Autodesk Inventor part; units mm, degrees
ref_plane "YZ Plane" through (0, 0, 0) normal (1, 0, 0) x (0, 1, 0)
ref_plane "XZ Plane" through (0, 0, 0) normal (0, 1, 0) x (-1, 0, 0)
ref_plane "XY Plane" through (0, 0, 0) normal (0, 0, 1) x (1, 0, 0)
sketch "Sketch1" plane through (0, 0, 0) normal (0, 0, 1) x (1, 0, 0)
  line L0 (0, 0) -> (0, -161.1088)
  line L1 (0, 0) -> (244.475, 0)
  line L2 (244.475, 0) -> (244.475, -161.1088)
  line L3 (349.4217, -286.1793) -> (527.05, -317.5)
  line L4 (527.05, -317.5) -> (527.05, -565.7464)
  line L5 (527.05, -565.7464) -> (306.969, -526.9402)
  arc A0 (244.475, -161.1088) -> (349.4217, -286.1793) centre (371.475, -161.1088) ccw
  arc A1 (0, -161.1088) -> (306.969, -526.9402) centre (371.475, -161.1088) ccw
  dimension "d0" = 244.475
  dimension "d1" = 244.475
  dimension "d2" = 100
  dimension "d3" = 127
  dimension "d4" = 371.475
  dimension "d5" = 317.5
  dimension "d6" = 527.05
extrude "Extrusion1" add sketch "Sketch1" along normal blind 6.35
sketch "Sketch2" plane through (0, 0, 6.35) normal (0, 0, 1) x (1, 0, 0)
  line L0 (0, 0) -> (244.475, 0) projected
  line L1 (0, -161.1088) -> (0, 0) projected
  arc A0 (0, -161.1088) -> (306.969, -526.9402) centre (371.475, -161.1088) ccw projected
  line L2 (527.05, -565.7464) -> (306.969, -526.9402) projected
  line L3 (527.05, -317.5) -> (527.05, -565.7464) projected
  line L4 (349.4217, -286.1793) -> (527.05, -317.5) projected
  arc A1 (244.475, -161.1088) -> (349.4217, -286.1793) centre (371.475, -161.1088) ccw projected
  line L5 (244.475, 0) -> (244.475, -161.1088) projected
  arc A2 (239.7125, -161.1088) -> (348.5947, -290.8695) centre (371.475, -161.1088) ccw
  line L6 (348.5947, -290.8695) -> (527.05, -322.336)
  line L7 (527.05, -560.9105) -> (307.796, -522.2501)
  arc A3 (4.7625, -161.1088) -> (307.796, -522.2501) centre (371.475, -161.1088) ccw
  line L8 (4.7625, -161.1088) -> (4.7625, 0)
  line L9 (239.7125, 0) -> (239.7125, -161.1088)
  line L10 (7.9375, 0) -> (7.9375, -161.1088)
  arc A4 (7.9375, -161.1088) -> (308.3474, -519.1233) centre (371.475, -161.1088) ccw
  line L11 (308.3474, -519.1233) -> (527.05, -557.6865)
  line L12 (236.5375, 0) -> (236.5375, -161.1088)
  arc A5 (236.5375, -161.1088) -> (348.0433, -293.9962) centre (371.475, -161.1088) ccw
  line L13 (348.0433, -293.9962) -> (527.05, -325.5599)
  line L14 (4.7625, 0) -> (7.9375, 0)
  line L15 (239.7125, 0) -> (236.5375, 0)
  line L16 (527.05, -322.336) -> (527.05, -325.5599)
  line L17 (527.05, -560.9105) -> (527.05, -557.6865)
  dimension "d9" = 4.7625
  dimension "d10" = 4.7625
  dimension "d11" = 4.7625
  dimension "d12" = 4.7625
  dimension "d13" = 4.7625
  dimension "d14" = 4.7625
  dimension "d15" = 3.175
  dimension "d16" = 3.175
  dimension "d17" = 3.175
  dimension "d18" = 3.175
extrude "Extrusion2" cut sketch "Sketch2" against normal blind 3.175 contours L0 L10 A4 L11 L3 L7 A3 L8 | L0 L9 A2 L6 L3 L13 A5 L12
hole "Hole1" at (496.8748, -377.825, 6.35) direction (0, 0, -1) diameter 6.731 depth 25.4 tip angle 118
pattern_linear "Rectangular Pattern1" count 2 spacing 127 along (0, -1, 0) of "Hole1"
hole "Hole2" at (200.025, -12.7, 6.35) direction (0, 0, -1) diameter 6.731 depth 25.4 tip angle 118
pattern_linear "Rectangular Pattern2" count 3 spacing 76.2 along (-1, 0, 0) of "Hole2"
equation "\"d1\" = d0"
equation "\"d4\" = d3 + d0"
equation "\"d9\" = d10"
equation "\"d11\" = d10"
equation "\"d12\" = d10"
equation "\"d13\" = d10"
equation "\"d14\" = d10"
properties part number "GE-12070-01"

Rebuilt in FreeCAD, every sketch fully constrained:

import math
import FreeCAD as App
import Part
import Sketcher
from FreeCAD import Vector
Q = App.Units.Quantity

doc = App.newDocument("Part")
body = doc.addObject("PartDesign::Body", "Body")

# Sketch on XY plane
sketch1 = body.newObject("Sketcher::SketchObject", "Sketch")
sketch1.AttachmentSupport = (doc.getObject("XY_Plane"), [""])
sketch1.MapMode = "FlatFace"
sketch1.addGeometry(Part.LineSegment(Vector(244.475, 0, 0), Vector(0, 0, 0)), False)
sketch1.addGeometry(Part.LineSegment(Vector(0, 0, 0), Vector(0, -161.1088, 0)), False)
sketch1.addGeometry(Part.ArcOfCircle(Part.Circle(Vector(371.475, -161.1088, 0), Vector(0, 0, 1), 371.475), math.radians(180), math.radians(259.999992)), False)
sketch1.addGeometry(Part.LineSegment(Vector(306.969, -526.9402, 0), Vector(527.05, -565.7464, 0)), False)
sketch1.addGeometry(Part.LineSegment(Vector(527.05, -565.7464, 0), Vector(527.05, -317.5, 0)), False)
sketch1.addGeometry(Part.LineSegment(Vector(527.05, -317.5, 0), Vector(349.4217, -286.1793, 0)), False)
sketch1.addGeometry(Part.ArcOfCircle(Part.Circle(Vector(371.475, -161.1088, 0), Vector(0, 0, 1), 127), math.radians(180), math.radians(260.000002)), False)
sketch1.addGeometry(Part.LineSegment(Vector(244.475, -161.1088, 0), Vector(244.475, 0, 0)), False)
sketch1.addConstraint(Sketcher.Constraint("Coincident", 0, 2, 1, 1))
sketch1.addConstraint(Sketcher.Constraint("Tangent", 1, 2, 2, 1))
sketch1.addConstraint(Sketcher.Constraint("Tangent", 2, 2, 3, 1))
sketch1.addConstraint(Sketcher.Constraint("Coincident", 3, 2, 4, 1))
sketch1.addConstraint(Sketcher.Constraint("Coincident", 4, 2, 5, 1))
sketch1.addConstraint(Sketcher.Constraint("Tangent", 5, 2, 6, 2))
sketch1.addConstraint(Sketcher.Constraint("Tangent", 6, 1, 7, 1))
sketch1.addConstraint(Sketcher.Constraint("Coincident", 7, 2, 0, 1))
sketch1.addConstraint(Sketcher.Constraint("Horizontal", 0))
sketch1.addConstraint(Sketcher.Constraint("Vertical", 1))
sketch1.addConstraint(Sketcher.Constraint("Vertical", 4))
sketch1.addConstraint(Sketcher.Constraint("Vertical", 7))
sketch1.addConstraint(Sketcher.Constraint("Coincident", 0, 2, -1, 1))
sketch1.addConstraint(Sketcher.Constraint("Coincident", 6, 3, 2, 3))
sketch1.addConstraint(Sketcher.Constraint("Parallel", 3, 5))
sketch1.addConstraint(Sketcher.Constraint("Radius", 6, Q("5 in")))
sketch1.addConstraint(Sketcher.Constraint("Radius", 2, Q("14.625 in")))
sketch1.addConstraint(Sketcher.Constraint("DistanceY", 4, 2, -1, 1, Q("12.5 in")))
sketch1.addConstraint(Sketcher.Constraint("DistanceX", -1, 1, 3, 2, Q("20.75 in")))
sketch1.addConstraint(Sketcher.Constraint("Angle", 3, Q("-10 deg")))
pad1 = body.newObject("PartDesign::Pad", "Pad")
pad1.Profile = sketch1
pad1.Length = Q("0.25 in")

# Sketch on XY plane
sketch2 = body.newObject("Sketcher::SketchObject", "Sketch001")
sketch2.AttachmentSupport = (doc.getObject("XY_Plane"), [""])
sketch2.MapMode = "FlatFace"
sketch2.AttachmentOffset = App.Placement(Vector(0, 0, 0.25 * 25.4), App.Rotation())
sketch2.addGeometry(Part.LineSegment(Vector(7.9375, 0, 0), Vector(4.7625, 0, 0)), False)
sketch2.addGeometry(Part.LineSegment(Vector(4.7625, 0, 0), Vector(4.7625, -161.1088, 0)), False)
sketch2.addGeometry(Part.ArcOfCircle(Part.Circle(Vector(371.475, -161.1088, 0), Vector(0, 0, 1), 366.7125), math.radians(180), math.radians(259.999993)), False)
sketch2.addGeometry(Part.LineSegment(Vector(307.796, -522.2501, 0), Vector(527.05, -560.9105, 0)), False)
sketch2.addGeometry(Part.LineSegment(Vector(527.05, -560.9105, 0), Vector(527.05, -557.6865, 0)), False)
sketch2.addGeometry(Part.LineSegment(Vector(527.05, -557.6865, 0), Vector(308.3474, -519.1233, 0)), False)
sketch2.addGeometry(Part.ArcOfCircle(Part.Circle(Vector(371.475, -161.1088, 0), Vector(0, 0, 1), 363.5375), math.radians(180), math.radians(260.000002)), False)
sketch2.addGeometry(Part.LineSegment(Vector(7.9375, -161.1088, 0), Vector(7.9375, 0, 0)), False)
sketch2.addGeometry(Part.LineSegment(Vector(239.7125, 0, 0), Vector(236.5375, 0, 0)), False)
sketch2.addGeometry(Part.LineSegment(Vector(236.5375, 0, 0), Vector(236.5375, -161.1088, 0)), False)
sketch2.addGeometry(Part.ArcOfCircle(Part.Circle(Vector(371.475, -161.1088, 0), Vector(0, 0, 1), 134.9375), math.radians(180), math.radians(259.999972)), False)
sketch2.addGeometry(Part.LineSegment(Vector(348.0433, -293.9962, 0), Vector(527.05, -325.5599, 0)), False)
sketch2.addGeometry(Part.LineSegment(Vector(527.05, -325.5599, 0), Vector(527.05, -322.336, 0)), False)
sketch2.addGeometry(Part.LineSegment(Vector(527.05, -322.336, 0), Vector(348.5947, -290.8695, 0)), False)
sketch2.addGeometry(Part.ArcOfCircle(Part.Circle(Vector(371.475, -161.1088, 0), Vector(0, 0, 1), 131.7625), math.radians(180), math.radians(260.000005)), False)
sketch2.addGeometry(Part.LineSegment(Vector(239.7125, -161.1088, 0), Vector(239.7125, 0, 0)), False)
sketch2.addConstraint(Sketcher.Constraint("Coincident", 0, 2, 1, 1))
sketch2.addConstraint(Sketcher.Constraint("Tangent", 1, 2, 2, 1))
sketch2.addConstraint(Sketcher.Constraint("Tangent", 2, 2, 3, 1))
sketch2.addConstraint(Sketcher.Constraint("Coincident", 3, 2, 4, 1))
sketch2.addConstraint(Sketcher.Constraint("Coincident", 4, 2, 5, 1))
sketch2.addConstraint(Sketcher.Constraint("Tangent", 5, 2, 6, 2))
sketch2.addConstraint(Sketcher.Constraint("Tangent", 6, 1, 7, 1))
sketch2.addConstraint(Sketcher.Constraint("Coincident", 7, 2, 0, 1))
sketch2.addConstraint(Sketcher.Constraint("Coincident", 8, 2, 9, 1))
sketch2.addConstraint(Sketcher.Constraint("Tangent", 9, 2, 10, 1))
sketch2.addConstraint(Sketcher.Constraint("Tangent", 10, 2, 11, 1))
sketch2.addConstraint(Sketcher.Constraint("Coincident", 11, 2, 12, 1))
sketch2.addConstraint(Sketcher.Constraint("Coincident", 12, 2, 13, 1))
sketch2.addConstraint(Sketcher.Constraint("Tangent", 13, 2, 14, 2))
sketch2.addConstraint(Sketcher.Constraint("Tangent", 14, 1, 15, 1))
sketch2.addConstraint(Sketcher.Constraint("Coincident", 15, 2, 8, 1))
sketch2.addConstraint(Sketcher.Constraint("Horizontal", 0))
sketch2.addConstraint(Sketcher.Constraint("Vertical", 1))
sketch2.addConstraint(Sketcher.Constraint("Vertical", 4))
sketch2.addConstraint(Sketcher.Constraint("Vertical", 7))
sketch2.addConstraint(Sketcher.Constraint("Horizontal", 8))
sketch2.addConstraint(Sketcher.Constraint("Vertical", 9))
sketch2.addConstraint(Sketcher.Constraint("Vertical", 12))
sketch2.addConstraint(Sketcher.Constraint("Vertical", 15))
sketch2.addConstraint(Sketcher.Constraint("Coincident", 6, 3, 2, 3))
sketch2.addConstraint(Sketcher.Constraint("Coincident", 10, 3, 2, 3))
sketch2.addConstraint(Sketcher.Constraint("Coincident", 14, 3, 2, 3))
sketch2.addConstraint(Sketcher.Constraint("PointOnObject", 0, 2, -1))
sketch2.addConstraint(Sketcher.Constraint("PointOnObject", 8, 2, -1))
sketch2.addConstraint(Sketcher.Constraint("Parallel", 3, 5))
sketch2.addConstraint(Sketcher.Constraint("Parallel", 5, 11))
sketch2.addConstraint(Sketcher.Constraint("Parallel", 11, 13))
sketch2.addConstraint(Sketcher.Constraint("Vertical", 4, 2, 11, 2))
sketch2.addConstraint(Sketcher.Constraint("Equal", 0, 8))
sketch2.addConstraint(Sketcher.Constraint("DistanceX", 0, 2, 0, 1, Q("0.125 in")))
sketch2.addConstraint(Sketcher.Constraint("DistanceX", -1, 1, 0, 2, Q("0.1875 in")))
sketch2.addConstraint(Sketcher.Constraint("Angle", 3, Q("-10 deg")))
sketch2.addConstraint(Sketcher.Constraint("Radius", 2, Q("14.4375 in")))
sketch2.addConstraint(Sketcher.Constraint("Radius", 10, Q("5.3125 in")))
sketch2.addConstraint(Sketcher.Constraint("DistanceX", -1, 1, 3, 2, Q("20.75 in")))
sketch2.addConstraint(Sketcher.Constraint("DistanceY", 1, 2, 1, 1, 161.1088))
pocket1 = body.newObject("PartDesign::Pocket", "Pocket")
pocket1.Profile = sketch2
pocket1.Length = Q("0.125 in")

# Sketch on XY plane
sketch3 = body.newObject("Sketcher::SketchObject", "Sketch002")
sketch3.AttachmentSupport = (doc.getObject("XY_Plane"), [""])
sketch3.MapMode = "FlatFace"
sketch3.AttachmentOffset = App.Placement(Vector(0, 0, 0.25 * 25.4), App.Rotation())
sketch3.addGeometry(Part.Circle(Vector(496.8748, -377.825, 0), Vector(0, 0, 1), 3.3655), False)
sketch3.addConstraint(Sketcher.Constraint("Diameter", 0, Q("0.265 in")))
sketch3.addConstraint(Sketcher.Constraint("DistanceX", -1, 1, 0, 3, Q("19.562 in")))
sketch3.addConstraint(Sketcher.Constraint("DistanceY", 0, 3, -1, 1, Q("14.875 in")))
doc.recompute()
hole = body.newObject("PartDesign::Hole", "Hole")
hole.Profile = sketch3
hole.ThreadType = "None"
hole.Diameter = Q("0.265 in")
hole.DepthType = "Dimension"
hole.Depth = Q("1 in")
hole.DrillPoint = "Angled"
hole.DrillPointAngle = 118
doc.recompute()

linearpattern = body.newObject("PartDesign::LinearPattern", "LinearPattern")
linearpattern.Originals = [hole]
linearpattern.Direction = (doc.getObject("Y_Axis"), [""])
linearpattern.Mode = "offset"
linearpattern.Offset = Q("5 in")
linearpattern.Occurrences = 2
linearpattern.Reversed = True
body.Tip = linearpattern

# Sketch on XY plane
sketch4 = body.newObject("Sketcher::SketchObject", "Sketch003")
sketch4.AttachmentSupport = (doc.getObject("XY_Plane"), [""])
sketch4.MapMode = "FlatFace"
sketch4.AttachmentOffset = App.Placement(Vector(0, 0, 0.25 * 25.4), App.Rotation())
sketch4.addGeometry(Part.Circle(Vector(200.025, -12.7, 0), Vector(0, 0, 1), 3.3655), False)
sketch4.addConstraint(Sketcher.Constraint("Diameter", 0, Q("0.265 in")))
sketch4.addConstraint(Sketcher.Constraint("DistanceY", 0, 3, -1, 1, Q("0.5 in")))
sketch4.addConstraint(Sketcher.Constraint("DistanceX", -1, 1, 0, 3, Q("7.875 in")))
doc.recompute()
hole2 = body.newObject("PartDesign::Hole", "Hole001")
hole2.Profile = sketch4
hole2.ThreadType = "None"
hole2.Diameter = Q("0.265 in")
hole2.DepthType = "Dimension"
hole2.Depth = Q("1 in")
hole2.DrillPoint = "Angled"
hole2.DrillPointAngle = 118
doc.recompute()

linearpattern2 = body.newObject("PartDesign::LinearPattern", "LinearPattern001")
linearpattern2.Originals = [hole2]
linearpattern2.Direction = (doc.getObject("X_Axis"), [""])
linearpattern2.Mode = "offset"
linearpattern2.Offset = Q("3 in")
linearpattern2.Occurrences = 3
linearpattern2.Reversed = True
body.Tip = linearpattern2

doc.recompute()
